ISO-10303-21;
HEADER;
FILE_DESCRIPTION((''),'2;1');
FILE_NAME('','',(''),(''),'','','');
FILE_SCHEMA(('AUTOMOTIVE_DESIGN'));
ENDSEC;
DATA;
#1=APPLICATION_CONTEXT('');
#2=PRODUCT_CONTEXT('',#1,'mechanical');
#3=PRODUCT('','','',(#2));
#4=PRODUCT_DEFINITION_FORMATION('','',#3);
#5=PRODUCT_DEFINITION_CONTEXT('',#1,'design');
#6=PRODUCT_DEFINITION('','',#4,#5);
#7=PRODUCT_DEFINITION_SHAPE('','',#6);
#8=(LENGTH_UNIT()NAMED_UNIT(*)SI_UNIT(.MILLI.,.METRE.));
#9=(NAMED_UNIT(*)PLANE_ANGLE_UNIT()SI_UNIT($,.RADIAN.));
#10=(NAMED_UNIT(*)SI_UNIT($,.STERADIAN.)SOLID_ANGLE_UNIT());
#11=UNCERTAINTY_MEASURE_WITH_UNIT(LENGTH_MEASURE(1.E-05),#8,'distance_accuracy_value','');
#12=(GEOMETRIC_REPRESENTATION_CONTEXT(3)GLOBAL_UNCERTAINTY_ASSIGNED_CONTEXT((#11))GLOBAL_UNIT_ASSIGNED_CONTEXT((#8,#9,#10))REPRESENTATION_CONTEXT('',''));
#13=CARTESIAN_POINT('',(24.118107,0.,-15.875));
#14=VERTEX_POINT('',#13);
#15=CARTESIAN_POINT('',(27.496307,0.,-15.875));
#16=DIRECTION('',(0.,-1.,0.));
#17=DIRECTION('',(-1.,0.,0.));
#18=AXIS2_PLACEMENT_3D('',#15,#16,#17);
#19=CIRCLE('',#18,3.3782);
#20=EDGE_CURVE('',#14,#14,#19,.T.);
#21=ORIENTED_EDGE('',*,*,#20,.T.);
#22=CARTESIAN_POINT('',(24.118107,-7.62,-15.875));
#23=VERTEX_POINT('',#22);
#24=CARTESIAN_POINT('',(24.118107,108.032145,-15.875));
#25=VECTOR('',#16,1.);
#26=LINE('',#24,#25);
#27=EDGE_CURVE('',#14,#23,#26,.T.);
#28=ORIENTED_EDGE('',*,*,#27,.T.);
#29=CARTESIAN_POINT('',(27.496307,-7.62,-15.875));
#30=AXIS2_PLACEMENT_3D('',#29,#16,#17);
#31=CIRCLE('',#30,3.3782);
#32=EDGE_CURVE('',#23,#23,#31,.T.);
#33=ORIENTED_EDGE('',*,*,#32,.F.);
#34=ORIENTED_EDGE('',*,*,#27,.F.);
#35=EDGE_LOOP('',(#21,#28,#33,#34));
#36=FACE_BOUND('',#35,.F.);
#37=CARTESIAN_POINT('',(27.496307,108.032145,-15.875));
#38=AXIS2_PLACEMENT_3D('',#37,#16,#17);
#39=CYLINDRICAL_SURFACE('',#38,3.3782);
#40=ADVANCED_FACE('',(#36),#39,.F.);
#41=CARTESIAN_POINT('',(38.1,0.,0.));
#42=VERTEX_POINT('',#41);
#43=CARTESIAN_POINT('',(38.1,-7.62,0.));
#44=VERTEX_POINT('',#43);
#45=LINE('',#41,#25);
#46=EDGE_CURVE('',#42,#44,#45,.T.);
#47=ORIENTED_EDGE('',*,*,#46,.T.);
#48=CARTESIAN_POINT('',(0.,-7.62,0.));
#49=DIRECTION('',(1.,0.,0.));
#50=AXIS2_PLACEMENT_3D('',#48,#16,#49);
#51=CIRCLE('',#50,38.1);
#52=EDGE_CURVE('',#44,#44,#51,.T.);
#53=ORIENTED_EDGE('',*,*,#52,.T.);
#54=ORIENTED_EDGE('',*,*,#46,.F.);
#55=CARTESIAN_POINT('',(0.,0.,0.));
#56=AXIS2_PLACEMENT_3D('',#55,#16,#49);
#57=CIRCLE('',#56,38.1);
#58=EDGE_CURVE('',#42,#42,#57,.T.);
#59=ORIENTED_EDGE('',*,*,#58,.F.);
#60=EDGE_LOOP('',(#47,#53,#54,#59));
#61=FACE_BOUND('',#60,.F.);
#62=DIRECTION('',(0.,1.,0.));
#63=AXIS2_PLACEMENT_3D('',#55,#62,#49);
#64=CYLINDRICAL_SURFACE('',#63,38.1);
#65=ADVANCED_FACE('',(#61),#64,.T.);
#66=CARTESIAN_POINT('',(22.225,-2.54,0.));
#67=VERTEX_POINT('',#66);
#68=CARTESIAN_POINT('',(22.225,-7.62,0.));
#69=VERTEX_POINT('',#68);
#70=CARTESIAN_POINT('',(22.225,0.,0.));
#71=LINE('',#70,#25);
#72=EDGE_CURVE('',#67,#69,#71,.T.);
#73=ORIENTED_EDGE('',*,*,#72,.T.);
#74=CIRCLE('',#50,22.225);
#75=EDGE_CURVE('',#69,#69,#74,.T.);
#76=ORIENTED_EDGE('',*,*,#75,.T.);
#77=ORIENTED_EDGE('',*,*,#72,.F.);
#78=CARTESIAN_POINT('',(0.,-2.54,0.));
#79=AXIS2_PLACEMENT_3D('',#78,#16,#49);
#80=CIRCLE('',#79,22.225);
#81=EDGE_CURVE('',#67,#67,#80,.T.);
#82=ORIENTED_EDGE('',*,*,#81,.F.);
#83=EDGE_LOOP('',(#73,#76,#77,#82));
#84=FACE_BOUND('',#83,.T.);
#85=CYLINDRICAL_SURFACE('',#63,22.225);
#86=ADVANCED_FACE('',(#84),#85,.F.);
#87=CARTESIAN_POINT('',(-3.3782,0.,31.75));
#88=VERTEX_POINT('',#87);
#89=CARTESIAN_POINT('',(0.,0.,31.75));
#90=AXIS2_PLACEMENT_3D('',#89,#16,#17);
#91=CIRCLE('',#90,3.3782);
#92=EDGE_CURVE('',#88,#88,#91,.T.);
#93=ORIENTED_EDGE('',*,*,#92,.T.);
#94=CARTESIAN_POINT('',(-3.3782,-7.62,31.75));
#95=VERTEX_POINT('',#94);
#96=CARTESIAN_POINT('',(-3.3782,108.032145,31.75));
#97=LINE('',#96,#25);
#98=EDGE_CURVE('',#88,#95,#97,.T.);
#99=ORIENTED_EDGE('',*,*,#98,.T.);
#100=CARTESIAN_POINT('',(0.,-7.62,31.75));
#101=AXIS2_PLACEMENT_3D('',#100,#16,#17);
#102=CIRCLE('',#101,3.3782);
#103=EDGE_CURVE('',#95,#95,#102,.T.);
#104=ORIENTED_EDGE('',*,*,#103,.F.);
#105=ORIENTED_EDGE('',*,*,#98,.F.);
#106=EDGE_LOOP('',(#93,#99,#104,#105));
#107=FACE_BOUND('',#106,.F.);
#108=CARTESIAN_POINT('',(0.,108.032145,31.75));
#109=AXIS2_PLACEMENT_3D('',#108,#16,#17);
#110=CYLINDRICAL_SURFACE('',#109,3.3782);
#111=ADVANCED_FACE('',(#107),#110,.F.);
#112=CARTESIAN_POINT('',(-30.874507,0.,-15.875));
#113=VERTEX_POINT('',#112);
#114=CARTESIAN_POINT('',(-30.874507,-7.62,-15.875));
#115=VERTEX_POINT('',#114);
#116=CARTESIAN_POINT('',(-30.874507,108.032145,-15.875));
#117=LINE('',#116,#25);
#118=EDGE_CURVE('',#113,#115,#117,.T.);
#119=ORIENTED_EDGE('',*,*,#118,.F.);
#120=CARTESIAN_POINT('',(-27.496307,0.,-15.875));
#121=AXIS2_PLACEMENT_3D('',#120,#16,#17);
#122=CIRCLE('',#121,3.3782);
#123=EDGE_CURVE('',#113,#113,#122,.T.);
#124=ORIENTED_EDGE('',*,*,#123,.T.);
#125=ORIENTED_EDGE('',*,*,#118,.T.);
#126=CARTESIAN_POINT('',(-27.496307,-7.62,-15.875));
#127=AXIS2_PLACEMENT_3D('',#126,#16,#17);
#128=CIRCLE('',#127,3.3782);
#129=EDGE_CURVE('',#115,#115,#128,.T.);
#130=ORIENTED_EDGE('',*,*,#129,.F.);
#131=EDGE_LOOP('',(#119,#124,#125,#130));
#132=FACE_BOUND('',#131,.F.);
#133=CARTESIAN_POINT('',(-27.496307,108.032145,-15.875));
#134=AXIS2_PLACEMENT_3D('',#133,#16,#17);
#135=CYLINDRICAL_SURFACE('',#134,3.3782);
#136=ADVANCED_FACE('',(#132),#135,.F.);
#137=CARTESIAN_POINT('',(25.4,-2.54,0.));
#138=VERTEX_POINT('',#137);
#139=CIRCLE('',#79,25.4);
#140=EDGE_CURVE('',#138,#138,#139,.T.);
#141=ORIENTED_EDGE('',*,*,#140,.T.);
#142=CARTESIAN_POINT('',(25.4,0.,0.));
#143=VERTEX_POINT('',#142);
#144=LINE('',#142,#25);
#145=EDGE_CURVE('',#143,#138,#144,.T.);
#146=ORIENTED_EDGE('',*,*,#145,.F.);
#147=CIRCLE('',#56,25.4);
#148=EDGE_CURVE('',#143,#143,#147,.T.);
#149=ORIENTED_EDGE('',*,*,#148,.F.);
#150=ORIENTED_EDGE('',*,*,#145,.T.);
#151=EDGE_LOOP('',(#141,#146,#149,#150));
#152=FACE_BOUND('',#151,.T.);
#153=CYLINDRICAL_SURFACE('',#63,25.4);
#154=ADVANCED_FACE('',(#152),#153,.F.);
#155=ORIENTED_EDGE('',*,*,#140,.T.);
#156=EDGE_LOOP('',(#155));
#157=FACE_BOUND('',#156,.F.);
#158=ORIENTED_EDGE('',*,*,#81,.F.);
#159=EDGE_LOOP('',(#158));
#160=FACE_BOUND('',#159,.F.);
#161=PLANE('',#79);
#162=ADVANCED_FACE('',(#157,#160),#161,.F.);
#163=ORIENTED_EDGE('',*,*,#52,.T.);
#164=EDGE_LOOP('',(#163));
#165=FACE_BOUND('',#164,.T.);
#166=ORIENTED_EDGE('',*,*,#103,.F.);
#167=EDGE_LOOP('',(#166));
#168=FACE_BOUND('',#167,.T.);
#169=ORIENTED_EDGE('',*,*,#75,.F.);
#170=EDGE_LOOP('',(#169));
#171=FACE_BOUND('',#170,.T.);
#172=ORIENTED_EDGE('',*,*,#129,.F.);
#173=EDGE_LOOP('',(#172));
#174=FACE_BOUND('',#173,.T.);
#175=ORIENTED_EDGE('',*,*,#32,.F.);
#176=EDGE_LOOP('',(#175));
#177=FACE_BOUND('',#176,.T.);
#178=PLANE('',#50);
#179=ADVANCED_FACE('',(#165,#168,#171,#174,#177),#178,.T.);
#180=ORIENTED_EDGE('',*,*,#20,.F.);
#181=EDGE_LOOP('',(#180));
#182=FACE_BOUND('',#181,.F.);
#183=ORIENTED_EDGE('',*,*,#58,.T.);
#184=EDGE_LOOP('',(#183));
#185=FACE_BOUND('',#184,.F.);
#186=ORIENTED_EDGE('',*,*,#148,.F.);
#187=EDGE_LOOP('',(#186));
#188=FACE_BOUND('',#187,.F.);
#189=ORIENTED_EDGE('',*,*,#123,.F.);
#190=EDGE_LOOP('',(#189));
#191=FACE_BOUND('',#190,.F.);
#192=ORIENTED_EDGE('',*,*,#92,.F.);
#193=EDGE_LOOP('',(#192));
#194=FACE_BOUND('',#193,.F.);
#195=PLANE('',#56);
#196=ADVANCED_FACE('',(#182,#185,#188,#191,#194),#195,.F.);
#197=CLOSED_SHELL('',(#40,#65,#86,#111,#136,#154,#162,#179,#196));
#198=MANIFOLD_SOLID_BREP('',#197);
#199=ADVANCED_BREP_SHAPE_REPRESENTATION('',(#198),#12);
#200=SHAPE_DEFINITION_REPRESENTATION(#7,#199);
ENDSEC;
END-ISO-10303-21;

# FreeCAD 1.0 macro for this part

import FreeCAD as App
import Part
import Sketcher
from FreeCAD import Vector
Q = App.Units.Quantity

doc = App.newDocument("Part")
body = doc.addObject("PartDesign::Body", "Body")

sketch1 = body.newObject("Sketcher::SketchObject", "Sketch")
sketch1.AttachmentSupport = (doc.getObject("XZ_Plane"), [""])
sketch1.MapMode = "FlatFace"
sketch1.addGeometry(Part.Circle(Vector(0, 0, 0), Vector(0, 0, 1), 38), False)
sketch1.addGeometry(Part.Circle(Vector(0, 0, 0), Vector(0, 0, 1), 22), False)
sketch1.addConstraint(Sketcher.Constraint("Coincident", 0, 3, -1, 1))
sketch1.addConstraint(Sketcher.Constraint("Coincident", 1, 3, -1, 1))
sketch1.addConstraint(Sketcher.Constraint("Diameter", 0, Q("3 in")))
sketch1.addConstraint(Sketcher.Constraint("Diameter", 1, Q("1.75 in")))
pad1 = body.newObject("PartDesign::Pad", "Pad")
pad1.Profile = sketch1
pad1.Length = Q("0.3 in")

sketch2 = body.newObject("Sketcher::SketchObject", "Sketch001")
sketch2.AttachmentSupport = (doc.getObject("XZ_Plane"), [""])
sketch2.MapMode = "FlatFace"
sketch2.addGeometry(Part.Circle(Vector(0, 0, 0), Vector(0, 0, 1), 25), False)
sketch2.addGeometry(Part.Circle(Vector(0, 0, 0), Vector(0, 0, 1), 22), False)
sketch2.addConstraint(Sketcher.Constraint("Coincident", 0, 3, -1, 1))
sketch2.addConstraint(Sketcher.Constraint("Coincident", 1, 3, -1, 1))
sketch2.addConstraint(Sketcher.Constraint("Diameter", 0, Q("2 in")))
sketch2.addConstraint(Sketcher.Constraint("Diameter", 1, Q("1.75 in")))
pocket1 = body.newObject("PartDesign::Pocket", "Pocket")
pocket1.Profile = sketch2
pocket1.Length = Q("0.1 in")
pocket1.Reversed = True

sketch3 = body.newObject("Sketcher::SketchObject", "Sketch002")
sketch3.AttachmentSupport = (doc.getObject("XZ_Plane"), [""])
sketch3.MapMode = "FlatFace"
sketch3.addGeometry(Part.Circle(Vector(27.5, -15.9, 0), Vector(0, 0, 1), 3.4), False)
sketch3.addGeometry(Part.Circle(Vector(-27.5, -15.9, 0), Vector(0, 0, 1), 3.4), False)
sketch3.addGeometry(Part.Circle(Vector(0, 31.8, 0), Vector(0, 0, 1), 3.4), False)
sketch3.addConstraint(Sketcher.Constraint("Equal", 0, 1))
sketch3.addConstraint(Sketcher.Constraint("Equal", 1, 2))
sketch3.addConstraint(Sketcher.Constraint("Symmetric", 0, 3, 1, 3, -2))
sketch3.addConstraint(Sketcher.Constraint("PointOnObject", 2, 3, -2))
sketch3.addConstraint(Sketcher.Constraint("Diameter", 0, Q("0.266 in")))
sketch3.addConstraint(Sketcher.Constraint("DistanceY", -1, 1, 2, 3, Q("1.25 in")))
sketch3.addConstraint(Sketcher.Constraint("DistanceY", 0, 3, -1, 1, Q("0.625 in")))
sketch3.addConstraint(Sketcher.Constraint("DistanceX", -1, 1, 0, 3, Q("27.496307 mm")))
doc.recompute()
hole = body.newObject("PartDesign::Hole", "Hole")
hole.Profile = sketch3
hole.ThreadType = "None"
hole.Diameter = Q("0.266 in")
hole.DepthType = "ThroughAll"
hole.Reversed = True

doc.recompute()
